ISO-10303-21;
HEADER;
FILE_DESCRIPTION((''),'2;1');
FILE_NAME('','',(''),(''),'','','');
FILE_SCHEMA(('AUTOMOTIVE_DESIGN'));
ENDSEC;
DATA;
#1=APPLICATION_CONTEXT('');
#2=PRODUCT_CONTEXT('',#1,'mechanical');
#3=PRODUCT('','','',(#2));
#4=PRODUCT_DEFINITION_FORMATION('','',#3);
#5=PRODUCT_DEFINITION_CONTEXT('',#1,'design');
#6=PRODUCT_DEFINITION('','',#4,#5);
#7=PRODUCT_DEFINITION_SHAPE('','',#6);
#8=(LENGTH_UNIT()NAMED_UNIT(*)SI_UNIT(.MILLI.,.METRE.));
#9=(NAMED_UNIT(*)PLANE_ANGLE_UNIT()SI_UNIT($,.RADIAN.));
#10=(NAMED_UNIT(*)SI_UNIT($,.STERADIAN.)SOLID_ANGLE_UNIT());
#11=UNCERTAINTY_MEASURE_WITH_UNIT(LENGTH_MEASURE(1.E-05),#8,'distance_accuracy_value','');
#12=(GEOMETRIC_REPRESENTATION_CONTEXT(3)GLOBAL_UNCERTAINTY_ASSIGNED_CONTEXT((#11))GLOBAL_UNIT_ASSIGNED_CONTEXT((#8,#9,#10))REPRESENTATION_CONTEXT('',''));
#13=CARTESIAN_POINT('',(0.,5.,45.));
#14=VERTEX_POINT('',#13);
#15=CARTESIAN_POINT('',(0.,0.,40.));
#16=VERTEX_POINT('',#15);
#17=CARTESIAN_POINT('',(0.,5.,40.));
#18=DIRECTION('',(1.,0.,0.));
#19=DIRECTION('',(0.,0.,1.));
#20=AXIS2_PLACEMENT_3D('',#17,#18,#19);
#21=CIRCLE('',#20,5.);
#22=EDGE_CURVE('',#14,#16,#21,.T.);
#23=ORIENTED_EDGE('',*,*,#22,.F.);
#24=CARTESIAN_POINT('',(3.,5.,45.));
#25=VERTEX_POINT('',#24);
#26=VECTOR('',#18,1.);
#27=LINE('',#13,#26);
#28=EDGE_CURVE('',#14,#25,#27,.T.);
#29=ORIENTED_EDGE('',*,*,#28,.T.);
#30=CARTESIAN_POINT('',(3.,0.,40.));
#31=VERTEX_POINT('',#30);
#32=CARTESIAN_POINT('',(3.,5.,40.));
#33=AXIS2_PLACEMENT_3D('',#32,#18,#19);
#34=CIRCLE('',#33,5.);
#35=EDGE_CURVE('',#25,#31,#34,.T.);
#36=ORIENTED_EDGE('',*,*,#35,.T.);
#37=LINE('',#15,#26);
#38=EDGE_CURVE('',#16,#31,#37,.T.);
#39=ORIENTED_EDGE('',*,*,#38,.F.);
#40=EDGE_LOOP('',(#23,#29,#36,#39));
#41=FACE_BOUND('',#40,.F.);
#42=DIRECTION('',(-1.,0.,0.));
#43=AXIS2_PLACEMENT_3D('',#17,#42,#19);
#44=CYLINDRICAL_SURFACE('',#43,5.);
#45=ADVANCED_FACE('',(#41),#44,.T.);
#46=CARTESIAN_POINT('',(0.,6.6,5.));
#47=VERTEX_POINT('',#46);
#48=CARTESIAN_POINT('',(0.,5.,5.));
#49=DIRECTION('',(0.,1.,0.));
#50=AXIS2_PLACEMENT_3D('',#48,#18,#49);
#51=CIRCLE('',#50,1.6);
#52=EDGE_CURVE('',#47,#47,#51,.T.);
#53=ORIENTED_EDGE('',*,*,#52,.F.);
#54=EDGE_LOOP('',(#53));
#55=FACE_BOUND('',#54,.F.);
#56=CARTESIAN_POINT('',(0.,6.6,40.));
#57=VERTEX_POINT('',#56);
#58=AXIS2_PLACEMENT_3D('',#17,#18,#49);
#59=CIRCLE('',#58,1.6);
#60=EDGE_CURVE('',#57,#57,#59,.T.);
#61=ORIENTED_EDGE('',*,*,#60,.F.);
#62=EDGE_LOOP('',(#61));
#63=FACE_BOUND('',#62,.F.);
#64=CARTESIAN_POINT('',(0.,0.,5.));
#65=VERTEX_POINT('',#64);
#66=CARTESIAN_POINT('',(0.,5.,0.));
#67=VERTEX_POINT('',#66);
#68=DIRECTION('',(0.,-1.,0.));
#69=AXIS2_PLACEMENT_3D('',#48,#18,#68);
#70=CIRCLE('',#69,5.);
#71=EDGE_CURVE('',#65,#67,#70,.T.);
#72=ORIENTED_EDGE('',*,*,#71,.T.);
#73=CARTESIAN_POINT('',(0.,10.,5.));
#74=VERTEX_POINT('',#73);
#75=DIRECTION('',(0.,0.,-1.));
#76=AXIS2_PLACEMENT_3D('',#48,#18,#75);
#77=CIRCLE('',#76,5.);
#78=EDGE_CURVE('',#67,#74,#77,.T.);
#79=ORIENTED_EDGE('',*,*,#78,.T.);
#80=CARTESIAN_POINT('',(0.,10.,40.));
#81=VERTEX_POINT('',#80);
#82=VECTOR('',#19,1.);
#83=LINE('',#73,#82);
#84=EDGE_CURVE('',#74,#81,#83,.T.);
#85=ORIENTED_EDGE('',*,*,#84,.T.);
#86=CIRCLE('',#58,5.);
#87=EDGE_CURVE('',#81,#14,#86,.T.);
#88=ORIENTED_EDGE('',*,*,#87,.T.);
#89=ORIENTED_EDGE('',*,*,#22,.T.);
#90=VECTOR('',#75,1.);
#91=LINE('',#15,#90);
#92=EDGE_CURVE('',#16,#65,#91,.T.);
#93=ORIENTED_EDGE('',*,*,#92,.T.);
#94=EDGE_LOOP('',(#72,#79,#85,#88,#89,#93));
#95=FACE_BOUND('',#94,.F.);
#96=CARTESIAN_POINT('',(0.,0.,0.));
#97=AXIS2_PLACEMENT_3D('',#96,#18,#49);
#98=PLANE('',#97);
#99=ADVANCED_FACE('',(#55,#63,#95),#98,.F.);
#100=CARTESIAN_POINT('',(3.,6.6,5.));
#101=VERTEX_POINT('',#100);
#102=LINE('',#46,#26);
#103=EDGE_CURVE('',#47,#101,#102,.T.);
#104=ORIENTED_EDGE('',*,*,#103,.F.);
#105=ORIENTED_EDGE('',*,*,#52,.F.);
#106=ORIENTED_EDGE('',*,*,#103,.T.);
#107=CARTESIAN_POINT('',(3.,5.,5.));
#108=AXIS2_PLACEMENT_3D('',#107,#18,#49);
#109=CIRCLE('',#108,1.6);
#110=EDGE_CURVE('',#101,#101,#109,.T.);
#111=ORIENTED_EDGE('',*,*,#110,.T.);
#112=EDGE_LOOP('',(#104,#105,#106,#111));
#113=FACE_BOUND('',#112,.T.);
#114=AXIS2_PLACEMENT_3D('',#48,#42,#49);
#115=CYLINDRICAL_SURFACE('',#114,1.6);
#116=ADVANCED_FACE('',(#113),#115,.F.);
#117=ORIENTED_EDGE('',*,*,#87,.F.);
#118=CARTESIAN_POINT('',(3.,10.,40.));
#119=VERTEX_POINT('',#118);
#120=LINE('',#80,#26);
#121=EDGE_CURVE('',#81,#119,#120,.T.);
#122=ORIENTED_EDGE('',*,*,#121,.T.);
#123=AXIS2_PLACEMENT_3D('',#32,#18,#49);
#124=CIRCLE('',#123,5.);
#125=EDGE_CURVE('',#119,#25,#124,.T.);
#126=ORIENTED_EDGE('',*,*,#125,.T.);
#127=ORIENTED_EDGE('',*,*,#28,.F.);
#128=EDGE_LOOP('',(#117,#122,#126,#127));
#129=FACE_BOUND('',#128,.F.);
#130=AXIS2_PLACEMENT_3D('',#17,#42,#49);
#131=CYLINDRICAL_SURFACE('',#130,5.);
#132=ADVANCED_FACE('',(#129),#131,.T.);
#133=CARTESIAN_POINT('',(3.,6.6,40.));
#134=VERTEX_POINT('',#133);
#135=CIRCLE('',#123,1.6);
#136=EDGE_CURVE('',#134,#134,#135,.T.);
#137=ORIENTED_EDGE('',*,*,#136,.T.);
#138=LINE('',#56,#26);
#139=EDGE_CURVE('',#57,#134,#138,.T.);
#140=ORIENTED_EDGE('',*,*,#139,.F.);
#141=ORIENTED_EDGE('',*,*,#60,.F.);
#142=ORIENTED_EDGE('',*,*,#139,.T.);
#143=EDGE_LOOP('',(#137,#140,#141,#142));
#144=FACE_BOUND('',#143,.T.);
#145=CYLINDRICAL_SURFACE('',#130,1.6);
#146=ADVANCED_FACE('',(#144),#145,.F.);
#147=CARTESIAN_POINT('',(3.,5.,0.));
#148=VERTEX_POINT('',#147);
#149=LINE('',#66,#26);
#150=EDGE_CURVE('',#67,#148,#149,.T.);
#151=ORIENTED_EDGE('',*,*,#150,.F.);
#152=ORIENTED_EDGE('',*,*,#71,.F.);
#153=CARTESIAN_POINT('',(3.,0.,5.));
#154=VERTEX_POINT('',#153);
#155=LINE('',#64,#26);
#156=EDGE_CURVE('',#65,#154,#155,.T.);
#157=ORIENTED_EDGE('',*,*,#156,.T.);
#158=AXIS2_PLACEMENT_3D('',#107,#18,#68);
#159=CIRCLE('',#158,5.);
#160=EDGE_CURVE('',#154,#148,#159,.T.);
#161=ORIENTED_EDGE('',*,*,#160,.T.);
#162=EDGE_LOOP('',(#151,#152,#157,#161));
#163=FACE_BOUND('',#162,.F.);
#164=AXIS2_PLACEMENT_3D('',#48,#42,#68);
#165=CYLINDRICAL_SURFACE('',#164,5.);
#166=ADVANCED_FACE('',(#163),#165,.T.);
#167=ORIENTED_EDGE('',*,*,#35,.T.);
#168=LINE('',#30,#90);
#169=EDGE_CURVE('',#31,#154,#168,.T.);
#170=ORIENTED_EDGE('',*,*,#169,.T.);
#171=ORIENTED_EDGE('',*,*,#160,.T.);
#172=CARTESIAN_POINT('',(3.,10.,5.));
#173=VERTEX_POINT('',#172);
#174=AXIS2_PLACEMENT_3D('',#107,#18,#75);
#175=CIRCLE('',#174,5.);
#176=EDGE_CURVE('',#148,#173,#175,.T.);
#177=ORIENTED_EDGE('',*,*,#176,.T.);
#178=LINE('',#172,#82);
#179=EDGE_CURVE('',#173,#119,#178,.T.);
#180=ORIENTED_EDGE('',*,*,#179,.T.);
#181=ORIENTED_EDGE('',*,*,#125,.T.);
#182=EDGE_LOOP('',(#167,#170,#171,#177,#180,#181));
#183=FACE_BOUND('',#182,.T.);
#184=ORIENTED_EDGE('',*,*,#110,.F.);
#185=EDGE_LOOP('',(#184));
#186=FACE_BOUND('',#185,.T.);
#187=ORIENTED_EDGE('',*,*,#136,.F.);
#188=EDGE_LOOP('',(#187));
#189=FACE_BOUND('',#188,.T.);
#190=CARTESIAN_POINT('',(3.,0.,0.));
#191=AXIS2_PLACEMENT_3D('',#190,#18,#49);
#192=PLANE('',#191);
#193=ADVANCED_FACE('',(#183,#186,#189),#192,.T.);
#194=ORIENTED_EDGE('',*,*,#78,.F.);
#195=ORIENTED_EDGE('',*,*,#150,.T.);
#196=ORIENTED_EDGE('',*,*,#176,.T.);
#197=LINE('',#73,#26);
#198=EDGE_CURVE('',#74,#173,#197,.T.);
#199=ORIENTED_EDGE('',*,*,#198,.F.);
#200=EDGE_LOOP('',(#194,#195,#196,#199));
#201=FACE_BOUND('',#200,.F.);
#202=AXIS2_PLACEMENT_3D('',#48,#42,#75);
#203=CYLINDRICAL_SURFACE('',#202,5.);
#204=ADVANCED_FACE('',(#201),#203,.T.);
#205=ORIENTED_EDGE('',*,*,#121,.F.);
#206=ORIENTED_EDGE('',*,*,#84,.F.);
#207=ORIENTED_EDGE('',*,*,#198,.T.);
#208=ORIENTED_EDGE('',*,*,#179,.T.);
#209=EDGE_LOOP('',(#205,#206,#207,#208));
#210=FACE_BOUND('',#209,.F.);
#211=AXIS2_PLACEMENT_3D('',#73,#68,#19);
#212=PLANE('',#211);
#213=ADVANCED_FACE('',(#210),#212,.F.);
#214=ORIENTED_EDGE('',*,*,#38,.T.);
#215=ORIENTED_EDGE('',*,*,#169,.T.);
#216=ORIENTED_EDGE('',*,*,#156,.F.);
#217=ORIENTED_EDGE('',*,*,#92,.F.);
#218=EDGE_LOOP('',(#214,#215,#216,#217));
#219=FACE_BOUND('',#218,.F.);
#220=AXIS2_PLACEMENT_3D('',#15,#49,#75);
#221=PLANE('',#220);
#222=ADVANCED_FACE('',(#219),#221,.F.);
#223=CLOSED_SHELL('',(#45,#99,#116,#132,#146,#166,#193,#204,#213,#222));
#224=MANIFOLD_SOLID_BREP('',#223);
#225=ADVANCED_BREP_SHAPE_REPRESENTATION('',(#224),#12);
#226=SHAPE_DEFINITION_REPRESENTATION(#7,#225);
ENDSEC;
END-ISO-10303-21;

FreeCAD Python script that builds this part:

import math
import FreeCAD as App
import Part
import Sketcher
from FreeCAD import Vector

doc = App.newDocument("Part")
body = doc.addObject("PartDesign::Body", "Body")

# Sketch on YZ plane
sketch1 = body.newObject("Sketcher::SketchObject", "Sketch")
sketch1.AttachmentSupport = (doc.getObject("YZ_Plane"), [""])
sketch1.MapMode = "FlatFace"
sketch1.addGeometry([
    Part.ArcOfCircle(Part.Circle(Vector(5, 5, 0), Vector(0, 0, 1), 5), math.radians(180), math.radians(360)),  # 0
    Part.LineSegment(Vector(10, 5, 0), Vector(10, 40, 0)),  # 1
    Part.ArcOfCircle(Part.Circle(Vector(5, 40, 0), Vector(0, 0, 1), 5), math.radians(0), math.radians(180)),  # 2
    Part.LineSegment(Vector(0, 40, 0), Vector(0, 5, 0)),  # 3
    Part.Circle(Vector(5, 5, 0), Vector(0, 0, 1), 1.6),  # 4
    Part.Circle(Vector(5, 40, 0), Vector(0, 0, 1), 1.6),  # 5
], False)
sketch1.addConstraint([
    Sketcher.Constraint("Tangent", 0, 2, 1, 1),
    Sketcher.Constraint("Tangent", 1, 2, 2, 1),
    Sketcher.Constraint("Tangent", 2, 2, 3, 1),
    Sketcher.Constraint("Tangent", 3, 2, 0, 1),
    Sketcher.Constraint("Vertical", 1),
    Sketcher.Constraint("Vertical", 3),
    Sketcher.Constraint("Coincident", 4, 3, 0, 3),
    Sketcher.Constraint("Coincident", 5, 3, 2, 3),
    Sketcher.Constraint("Equal", 4, 5),
    Sketcher.Constraint("PointOnObject", 2, 2, -2),
    Sketcher.Constraint("Radius", 0, 5.0),
    Sketcher.Constraint("Diameter", 4, 3.2),
    Sketcher.Constraint("DistanceY", 1, 1, 1, 2, 35.0),
    Sketcher.Constraint("DistanceY", -1, 1, 0, 3, 5.0),
])
pad1 = body.newObject("PartDesign::Pad", "Pad")
pad1.Profile = sketch1
pad1.Length = 3

doc.recompute()
